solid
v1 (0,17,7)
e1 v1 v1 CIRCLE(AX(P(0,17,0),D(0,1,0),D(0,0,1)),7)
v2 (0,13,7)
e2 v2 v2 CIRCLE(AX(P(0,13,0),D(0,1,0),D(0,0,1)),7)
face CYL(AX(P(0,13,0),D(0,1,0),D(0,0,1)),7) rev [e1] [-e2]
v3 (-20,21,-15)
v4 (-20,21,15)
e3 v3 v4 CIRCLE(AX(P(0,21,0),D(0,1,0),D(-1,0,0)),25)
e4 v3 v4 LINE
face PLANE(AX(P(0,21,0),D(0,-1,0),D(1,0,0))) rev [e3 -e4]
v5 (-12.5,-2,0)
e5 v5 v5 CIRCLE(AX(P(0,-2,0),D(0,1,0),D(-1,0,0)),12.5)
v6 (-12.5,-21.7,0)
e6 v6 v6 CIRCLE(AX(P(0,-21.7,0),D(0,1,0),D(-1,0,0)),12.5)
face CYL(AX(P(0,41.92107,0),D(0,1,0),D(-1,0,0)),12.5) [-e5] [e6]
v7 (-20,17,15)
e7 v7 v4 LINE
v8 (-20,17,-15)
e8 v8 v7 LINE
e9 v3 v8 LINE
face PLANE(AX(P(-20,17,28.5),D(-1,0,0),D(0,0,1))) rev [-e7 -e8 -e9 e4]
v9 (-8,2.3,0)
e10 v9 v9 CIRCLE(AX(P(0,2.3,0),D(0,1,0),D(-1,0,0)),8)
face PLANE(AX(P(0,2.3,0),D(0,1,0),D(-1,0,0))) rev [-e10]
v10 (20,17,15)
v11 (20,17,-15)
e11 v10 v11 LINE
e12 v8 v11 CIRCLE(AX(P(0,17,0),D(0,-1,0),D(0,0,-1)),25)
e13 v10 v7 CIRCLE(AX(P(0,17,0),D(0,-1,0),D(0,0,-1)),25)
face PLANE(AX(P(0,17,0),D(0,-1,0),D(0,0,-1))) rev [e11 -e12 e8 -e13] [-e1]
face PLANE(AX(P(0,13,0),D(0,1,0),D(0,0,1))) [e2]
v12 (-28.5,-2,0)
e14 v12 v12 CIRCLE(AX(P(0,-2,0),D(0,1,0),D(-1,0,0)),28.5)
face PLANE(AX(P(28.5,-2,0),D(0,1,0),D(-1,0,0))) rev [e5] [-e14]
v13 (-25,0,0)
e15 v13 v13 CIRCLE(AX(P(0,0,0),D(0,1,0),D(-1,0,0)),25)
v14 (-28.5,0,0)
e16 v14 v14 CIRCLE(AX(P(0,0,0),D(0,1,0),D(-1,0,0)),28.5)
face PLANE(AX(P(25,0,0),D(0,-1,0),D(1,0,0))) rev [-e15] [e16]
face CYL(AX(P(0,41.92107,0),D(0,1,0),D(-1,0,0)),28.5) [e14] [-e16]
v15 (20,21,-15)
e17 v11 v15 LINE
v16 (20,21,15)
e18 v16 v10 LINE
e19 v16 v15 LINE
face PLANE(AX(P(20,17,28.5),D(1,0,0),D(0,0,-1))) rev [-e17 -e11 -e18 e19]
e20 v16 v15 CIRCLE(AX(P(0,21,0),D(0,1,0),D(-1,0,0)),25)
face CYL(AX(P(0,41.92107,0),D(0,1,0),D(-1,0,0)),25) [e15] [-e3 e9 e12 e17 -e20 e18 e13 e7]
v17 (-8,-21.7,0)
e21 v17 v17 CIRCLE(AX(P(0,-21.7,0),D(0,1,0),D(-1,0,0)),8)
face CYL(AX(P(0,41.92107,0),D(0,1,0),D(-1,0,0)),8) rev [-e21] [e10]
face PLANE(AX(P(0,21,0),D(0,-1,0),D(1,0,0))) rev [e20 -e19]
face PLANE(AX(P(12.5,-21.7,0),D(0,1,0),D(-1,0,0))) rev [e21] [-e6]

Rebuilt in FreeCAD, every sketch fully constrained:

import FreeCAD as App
import Part
import Sketcher
Q = App.Units.Quantity


def add_polygon(sketch, points):
    """Adds a closed chain of lines whose ends are joined by coincident constraints."""
    first, n = sketch.GeometryCount, len(points)
    for a, b in zip(points, points[1:] + points[:1]):
        sketch.addGeometry(Part.LineSegment(App.Vector(*a, 0), App.Vector(*b, 0)), False)
    for i in range(n):
        sketch.addConstraint(Sketcher.Constraint("Coincident", first + i, 2, first + (i + 1) % n, 1))

doc = App.newDocument("Part")
body = doc.addObject("PartDesign::Body", "Body")

# Sketch on XY plane
sketch1 = body.newObject("Sketcher::SketchObject", "Sketch")
sketch1.AttachmentSupport = (doc.getObject("XY_Plane"), [""])
sketch1.MapMode = "FlatFace"
add_polygon(sketch1, [(25, 21), (0, 21), (0, 2.3), (8, 2.3), (8, -21.7), (12.5, -21.7), (12.5, -2), (28.5, -2), (28.5, 0), (25, 0)])  # lines 0-9
sketch1.addConstraint(Sketcher.Constraint("Horizontal", 0))
sketch1.addConstraint(Sketcher.Constraint("Vertical", 1))
sketch1.addConstraint(Sketcher.Constraint("Horizontal", 2))
sketch1.addConstraint(Sketcher.Constraint("Vertical", 3))
sketch1.addConstraint(Sketcher.Constraint("Horizontal", 4))
sketch1.addConstraint(Sketcher.Constraint("Vertical", 5))
sketch1.addConstraint(Sketcher.Constraint("Horizontal", 6))
sketch1.addConstraint(Sketcher.Constraint("Vertical", 7))
sketch1.addConstraint(Sketcher.Constraint("Horizontal", 8))
sketch1.addConstraint(Sketcher.Constraint("Vertical", 9))
sketch1.addConstraint(Sketcher.Constraint("PointOnObject", 0, 2, -2))
sketch1.addConstraint(Sketcher.Constraint("PointOnObject", 7, 2, -1))
sketch1.addConstraint(Sketcher.Constraint("DistanceX", 0, 2, 0, 1, Q("25 mm")))
sketch1.addConstraint(Sketcher.Constraint("DistanceX", 2, 1, 2, 2, Q("8 mm")))
sketch1.addConstraint(Sketcher.Constraint("DistanceX", 6, 1, 6, 2, Q("16 mm")))
sketch1.addConstraint(Sketcher.Constraint("DistanceY", 3, 2, 3, 1, Q("24 mm")))
sketch1.addConstraint(Sketcher.Constraint("DistanceY", 7, 1, 7, 2, Q("2 mm")))
sketch1.addConstraint(Sketcher.Constraint("DistanceY", 9, 1, 9, 2, Q("21 mm")))
sketch1.addConstraint(Sketcher.Constraint("DistanceX", 4, 1, 4, 2, Q("4.5 mm")))
sketch1.addConstraint(Sketcher.Constraint("DistanceY", 1, 2, 1, 1, Q("18.7 mm")))
revolution = body.newObject("PartDesign::Revolution", "Revolution")
revolution.Profile = sketch1
revolution.ReferenceAxis = (sketch1, ["V_Axis"])
revolution.Angle = 360

# Sketch on XZ plane
sketch2 = body.newObject("Sketcher::SketchObject", "Sketch001")
sketch2.AttachmentSupport = (doc.getObject("XZ_Plane"), [""])
sketch2.MapMode = "FlatFace"
sketch2.AttachmentOffset = App.Placement(App.Vector(0, 0, -21), App.Rotation())
add_polygon(sketch2, [(-20, -28), (-20, 28), (20, 28), (20, -28)])  # lines 0-3
sketch2.addConstraint(Sketcher.Constraint("Vertical", 0))
sketch2.addConstraint(Sketcher.Constraint("Horizontal", 1))
sketch2.addConstraint(Sketcher.Constraint("Vertical", 2))
sketch2.addConstraint(Sketcher.Constraint("Horizontal", 3))
sketch2.addConstraint(Sketcher.Constraint("Symmetric", 0, 2, 2, 2, -1, 1))
sketch2.addConstraint(Sketcher.Constraint("DistanceX", 1, 1, 1, 2, Q("40 mm")))
sketch2.addConstraint(Sketcher.Constraint("DistanceY", 0, 1, 0, 2, Q("57 mm")))
pocket1 = body.newObject("PartDesign::Pocket", "Pocket")
pocket1.Profile = sketch2
pocket1.Length = 4
pocket1.Reversed = True

# Sketch on XZ plane
sketch3 = body.newObject("Sketcher::SketchObject", "Sketch002")
sketch3.AttachmentSupport = (doc.getObject("XZ_Plane"), [""])
sketch3.MapMode = "FlatFace"
sketch3.AttachmentOffset = App.Placement(App.Vector(0, 0, -17), App.Rotation())
sketch3.addGeometry(Part.Circle(App.Vector(0, 0, 0), App.Vector(0, 0, 1), 7), False)
sketch3.addConstraint(Sketcher.Constraint("Coincident", 0, 3, -1, 1))
sketch3.addConstraint(Sketcher.Constraint("Diameter", 0, Q("14 mm")))
pocket2 = body.newObject("PartDesign::Pocket", "Pocket001")
pocket2.Profile = sketch3
pocket2.Length = 4
pocket2.Reversed = True

doc.recompute()
